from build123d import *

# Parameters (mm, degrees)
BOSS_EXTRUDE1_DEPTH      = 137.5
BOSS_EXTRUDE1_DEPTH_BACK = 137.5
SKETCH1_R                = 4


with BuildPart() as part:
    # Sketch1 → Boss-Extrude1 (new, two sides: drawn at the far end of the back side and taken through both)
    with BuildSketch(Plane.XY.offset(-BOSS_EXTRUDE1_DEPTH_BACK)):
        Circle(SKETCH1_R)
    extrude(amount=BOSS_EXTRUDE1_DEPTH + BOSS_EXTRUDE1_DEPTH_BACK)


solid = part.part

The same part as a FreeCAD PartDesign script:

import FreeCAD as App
import Part
import Sketcher

V = App.Vector
Q = App.Units.Quantity

doc = App.newDocument("Part")
params = doc.addObject("Spreadsheet::Sheet", "Params")
for row, (alias, value) in enumerate([
    ("sketch1_diameter", "8 mm"),
    ("pad1_length", "137.5 mm"),
    ("pad1_length2", "137.5 mm"),
], start=1):
    params.set(f"A{row}", alias)
    params.set(f"B{row}", "=" + value)
    params.setAlias(f"B{row}", alias)

body = doc.addObject("PartDesign::Body", "Body")

sketch1 = body.newObject("Sketcher::SketchObject", "Sketch")
sketch1.AttachmentSupport = (doc.getObject("XY_Plane"), [""])
sketch1.MapMode = "FlatFace"
sketch1.addGeometry(Part.Circle(V(0, 0, 0), V(0, 0, 1), 4), False)
sketch1.addConstraint(Sketcher.Constraint("Coincident", 0, 3, -1, 1))
sketch1.addConstraint(Sketcher.Constraint("Diameter", 0, Q("8 mm")))
sketch1.setExpression("Constraints[1]", "Params.sketch1_diameter")
pad1 = body.newObject("PartDesign::Pad", "Pad")
pad1.Profile = sketch1
pad1.Type = "TwoLengths"
pad1.setExpression("Length", "Params.pad1_length")
pad1.setExpression("Length2", "Params.pad1_length2")

doc.recompute()
